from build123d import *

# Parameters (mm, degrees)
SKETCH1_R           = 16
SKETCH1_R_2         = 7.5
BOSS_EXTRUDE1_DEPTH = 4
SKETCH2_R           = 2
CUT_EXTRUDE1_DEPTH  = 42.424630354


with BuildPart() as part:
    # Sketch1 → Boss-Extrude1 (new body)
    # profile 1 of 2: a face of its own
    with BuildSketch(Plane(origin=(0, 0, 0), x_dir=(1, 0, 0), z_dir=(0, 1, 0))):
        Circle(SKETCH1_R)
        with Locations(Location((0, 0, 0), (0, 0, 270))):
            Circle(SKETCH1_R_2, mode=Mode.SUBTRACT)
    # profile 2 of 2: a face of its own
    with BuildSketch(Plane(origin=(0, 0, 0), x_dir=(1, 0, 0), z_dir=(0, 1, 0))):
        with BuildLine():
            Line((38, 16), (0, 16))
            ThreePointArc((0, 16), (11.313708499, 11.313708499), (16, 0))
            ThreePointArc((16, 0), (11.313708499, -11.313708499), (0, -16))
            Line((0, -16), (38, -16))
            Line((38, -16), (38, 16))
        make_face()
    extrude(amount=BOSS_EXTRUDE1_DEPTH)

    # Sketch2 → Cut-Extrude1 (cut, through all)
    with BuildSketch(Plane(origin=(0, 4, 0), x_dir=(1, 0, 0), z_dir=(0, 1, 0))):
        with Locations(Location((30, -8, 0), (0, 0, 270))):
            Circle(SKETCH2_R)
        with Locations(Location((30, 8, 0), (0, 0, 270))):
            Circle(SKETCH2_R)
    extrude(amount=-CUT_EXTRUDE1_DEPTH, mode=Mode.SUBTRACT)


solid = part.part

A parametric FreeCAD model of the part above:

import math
import FreeCAD as App
import Part
import Sketcher

doc = App.newDocument("Part")
body = doc.addObject("PartDesign::Body", "Body")

sketch1 = body.newObject("Sketcher::SketchObject", "Sketch")
sketch1.AttachmentSupport = (doc.getObject("XZ_Plane"), [""])
sketch1.MapMode = "FlatFace"
sketch1.addGeometry([
    Part.ArcOfCircle(Part.Circle(App.Vector(0, 0, 0), App.Vector(0, 0, 1), 16), math.radians(90), math.radians(270)),
    Part.LineSegment(App.Vector(0, 16, 0), App.Vector(38, 16, 0)),
    Part.LineSegment(App.Vector(38, 16, 0), App.Vector(38, -16, 0)),
    Part.LineSegment(App.Vector(38, -16, 0), App.Vector(0, -16, 0)),
    Part.Circle(App.Vector(0, 0, 0), App.Vector(0, 0, 1), 7.5),
], False)
sketch1.addConstraint([
    Sketcher.Constraint("Tangent", 0, 1, 1, 1),
    Sketcher.Constraint("Coincident", 1, 2, 2, 1),
    Sketcher.Constraint("Coincident", 2, 2, 3, 1),
    Sketcher.Constraint("Tangent", 3, 2, 0, 2),
    Sketcher.Constraint("Horizontal", 1),
    Sketcher.Constraint("Vertical", 2),
    Sketcher.Constraint("Horizontal", 3),
    Sketcher.Constraint("Coincident", 0, 3, -1, 1),
    Sketcher.Constraint("Coincident", 4, 3, -1, 1),
    Sketcher.Constraint("Diameter", 4, 15.0),
    Sketcher.Constraint("Radius", 0, 16.0),
    Sketcher.Constraint("DistanceX", 1, 1, 1, 2, 38.0),
])
pad1 = body.newObject("PartDesign::Pad", "Pad")
pad1.Profile = sketch1
pad1.Length = 4
pad1.Reversed = True

sketch2 = body.newObject("Sketcher::SketchObject", "Sketch001")
sketch2.AttachmentSupport = (doc.getObject("XZ_Plane"), [""])
sketch2.MapMode = "FlatFace"
sketch2.AttachmentOffset = App.Placement(App.Vector(0, 0, -4), App.Rotation())
sketch2.addGeometry([
    Part.Circle(App.Vector(30, 8, 0), App.Vector(0, 0, 1), 2),
    Part.Circle(App.Vector(30, -8, 0), App.Vector(0, 0, 1), 2),
], False)
sketch2.addConstraint([
    Sketcher.Constraint("Equal", 0, 1),
    Sketcher.Constraint("Symmetric", 0, 3, 1, 3, -1),
    Sketcher.Constraint("Diameter", 0, 4.0),
    Sketcher.Constraint("DistanceX", -1, 1, 0, 3, 30.0),
    Sketcher.Constraint("DistanceY", -1, 1, 0, 3, 8.0),
])
pocket1 = body.newObject("PartDesign::Pocket", "Pocket")
pocket1.Profile = sketch2
pocket1.Type = "ThroughAll"
pocket1.Reversed = True

doc.recompute()
